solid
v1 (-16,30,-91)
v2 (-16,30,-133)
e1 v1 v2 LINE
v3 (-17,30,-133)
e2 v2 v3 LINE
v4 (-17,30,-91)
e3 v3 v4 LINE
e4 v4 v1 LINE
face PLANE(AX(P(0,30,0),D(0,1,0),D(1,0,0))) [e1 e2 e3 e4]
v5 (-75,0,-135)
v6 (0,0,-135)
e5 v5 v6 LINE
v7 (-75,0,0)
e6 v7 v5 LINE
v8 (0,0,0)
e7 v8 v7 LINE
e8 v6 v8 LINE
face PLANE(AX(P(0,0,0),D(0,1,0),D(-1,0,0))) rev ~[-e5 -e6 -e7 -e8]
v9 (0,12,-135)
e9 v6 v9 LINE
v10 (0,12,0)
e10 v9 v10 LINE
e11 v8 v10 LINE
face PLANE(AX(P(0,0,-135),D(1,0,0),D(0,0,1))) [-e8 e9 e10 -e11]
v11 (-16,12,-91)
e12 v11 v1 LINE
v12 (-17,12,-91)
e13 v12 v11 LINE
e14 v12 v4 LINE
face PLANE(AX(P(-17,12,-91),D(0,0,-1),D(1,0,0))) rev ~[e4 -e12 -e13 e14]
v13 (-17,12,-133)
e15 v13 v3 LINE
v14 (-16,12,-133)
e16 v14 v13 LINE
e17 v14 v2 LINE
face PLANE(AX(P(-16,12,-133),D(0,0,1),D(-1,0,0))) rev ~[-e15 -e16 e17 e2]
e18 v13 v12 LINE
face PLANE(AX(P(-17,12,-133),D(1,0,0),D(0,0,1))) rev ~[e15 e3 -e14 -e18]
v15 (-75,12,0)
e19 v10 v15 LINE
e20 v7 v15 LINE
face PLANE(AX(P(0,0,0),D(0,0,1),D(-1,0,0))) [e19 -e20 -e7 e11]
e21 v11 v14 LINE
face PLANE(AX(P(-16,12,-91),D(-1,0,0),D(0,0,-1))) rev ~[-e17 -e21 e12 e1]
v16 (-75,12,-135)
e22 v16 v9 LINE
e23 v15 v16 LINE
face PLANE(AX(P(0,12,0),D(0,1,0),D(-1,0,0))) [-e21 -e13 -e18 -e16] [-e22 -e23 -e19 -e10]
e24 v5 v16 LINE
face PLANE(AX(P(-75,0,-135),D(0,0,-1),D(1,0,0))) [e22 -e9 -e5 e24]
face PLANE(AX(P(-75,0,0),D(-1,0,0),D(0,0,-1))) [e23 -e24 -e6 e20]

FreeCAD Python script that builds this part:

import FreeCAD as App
import Part
import Sketcher

V = App.Vector

doc = App.newDocument("Part")
params = doc.addObject("Spreadsheet::Sheet", "Params")
for row, (alias, value) in enumerate([
    ("sketch1_width", "75 mm"),
    ("sketch1_height", "135 mm"),
    ("pad1_length", "12 mm"),
    ("sketch2_width", "1 mm"),
    ("sketch2_height", "42 mm"),
    ("pad2_length", "18 mm"),
], start=1):
    params.set(f"A{row}", alias)
    params.set(f"B{row}", "=" + value)
    params.setAlias(f"B{row}", alias)

body = doc.addObject("PartDesign::Body", "Body")

# Sketch on XZ plane
sketch1 = body.newObject("Sketcher::SketchObject", "Sketch")
sketch1.AttachmentSupport = (doc.getObject("XZ_Plane"), [""])
sketch1.MapMode = "FlatFace"
sketch1.addGeometry(Part.LineSegment(V(-75, 0, 0), V(0, 0, 0)), False)
sketch1.addGeometry(Part.LineSegment(V(0, 0, 0), V(0, -135, 0)), False)
sketch1.addGeometry(Part.LineSegment(V(0, -135, 0), V(-75, -135, 0)), False)
sketch1.addGeometry(Part.LineSegment(V(-75, -135, 0), V(-75, 0, 0)), False)
sketch1.addConstraint(Sketcher.Constraint("Coincident", 0, 2, 1, 1))
sketch1.addConstraint(Sketcher.Constraint("Coincident", 1, 2, 2, 1))
sketch1.addConstraint(Sketcher.Constraint("Coincident", 2, 2, 3, 1))
sketch1.addConstraint(Sketcher.Constraint("Coincident", 3, 2, 0, 1))
sketch1.addConstraint(Sketcher.Constraint("Horizontal", 0))
sketch1.addConstraint(Sketcher.Constraint("Vertical", 1))
sketch1.addConstraint(Sketcher.Constraint("Horizontal", 2))
sketch1.addConstraint(Sketcher.Constraint("Vertical", 3))
sketch1.addConstraint(Sketcher.Constraint("Coincident", 0, 2, -1, 1))
sketch1.addConstraint(Sketcher.Constraint("DistanceX", 0, 1, 0, 2, 75.0))
sketch1.addConstraint(Sketcher.Constraint("DistanceY", 1, 2, 1, 1, 135.0))
sketch1.setExpression("Constraints[9]", "Params.sketch1_width")
sketch1.setExpression("Constraints[10]", "Params.sketch1_height")
pad1 = body.newObject("PartDesign::Pad", "Pad")
pad1.Profile = sketch1
pad1.setExpression("Length", "Params.pad1_length")
pad1.Reversed = True

# Sketch on XZ plane
sketch2 = body.newObject("Sketcher::SketchObject", "Sketch001")
sketch2.AttachmentSupport = (doc.getObject("XZ_Plane"), [""])
sketch2.MapMode = "FlatFace"
sketch2.AttachmentOffset = App.Placement(V(0, 0, -12), App.Rotation())
sketch2.addGeometry(Part.LineSegment(V(-16, -91, 0), V(-16, -133, 0)), False)
sketch2.addGeometry(Part.LineSegment(V(-16, -133, 0), V(-17, -133, 0)), False)
sketch2.addGeometry(Part.LineSegment(V(-17, -133, 0), V(-17, -91, 0)), False)
sketch2.addGeometry(Part.LineSegment(V(-17, -91, 0), V(-16, -91, 0)), False)
sketch2.addConstraint(Sketcher.Constraint("Coincident", 0, 2, 1, 1))
sketch2.addConstraint(Sketcher.Constraint("Coincident", 1, 2, 2, 1))
sketch2.addConstraint(Sketcher.Constraint("Coincident", 2, 2, 3, 1))
sketch2.addConstraint(Sketcher.Constraint("Coincident", 3, 2, 0, 1))
sketch2.addConstraint(Sketcher.Constraint("Vertical", 0))
sketch2.addConstraint(Sketcher.Constraint("Horizontal", 1))
sketch2.addConstraint(Sketcher.Constraint("Vertical", 2))
sketch2.addConstraint(Sketcher.Constraint("Horizontal", 3))
sketch2.addConstraint(Sketcher.Constraint("DistanceX", 1, 2, 1, 1, 1.0))
sketch2.addConstraint(Sketcher.Constraint("DistanceY", 0, 2, 0, 1, 42.0))
sketch2.addConstraint(Sketcher.Constraint("DistanceX", 0, 2, -1, 1, 16.0))
sketch2.addConstraint(Sketcher.Constraint("DistanceY", 0, 2, -1, 1, 133.0))
sketch2.setExpression("Constraints[8]", "Params.sketch2_width")
sketch2.setExpression("Constraints[9]", "Params.sketch2_height")
pad2 = body.newObject("PartDesign::Pad", "Pad001")
pad2.Profile = sketch2
pad2.setExpression("Length", "Params.pad2_length")
pad2.Reversed = True

doc.recompute()
